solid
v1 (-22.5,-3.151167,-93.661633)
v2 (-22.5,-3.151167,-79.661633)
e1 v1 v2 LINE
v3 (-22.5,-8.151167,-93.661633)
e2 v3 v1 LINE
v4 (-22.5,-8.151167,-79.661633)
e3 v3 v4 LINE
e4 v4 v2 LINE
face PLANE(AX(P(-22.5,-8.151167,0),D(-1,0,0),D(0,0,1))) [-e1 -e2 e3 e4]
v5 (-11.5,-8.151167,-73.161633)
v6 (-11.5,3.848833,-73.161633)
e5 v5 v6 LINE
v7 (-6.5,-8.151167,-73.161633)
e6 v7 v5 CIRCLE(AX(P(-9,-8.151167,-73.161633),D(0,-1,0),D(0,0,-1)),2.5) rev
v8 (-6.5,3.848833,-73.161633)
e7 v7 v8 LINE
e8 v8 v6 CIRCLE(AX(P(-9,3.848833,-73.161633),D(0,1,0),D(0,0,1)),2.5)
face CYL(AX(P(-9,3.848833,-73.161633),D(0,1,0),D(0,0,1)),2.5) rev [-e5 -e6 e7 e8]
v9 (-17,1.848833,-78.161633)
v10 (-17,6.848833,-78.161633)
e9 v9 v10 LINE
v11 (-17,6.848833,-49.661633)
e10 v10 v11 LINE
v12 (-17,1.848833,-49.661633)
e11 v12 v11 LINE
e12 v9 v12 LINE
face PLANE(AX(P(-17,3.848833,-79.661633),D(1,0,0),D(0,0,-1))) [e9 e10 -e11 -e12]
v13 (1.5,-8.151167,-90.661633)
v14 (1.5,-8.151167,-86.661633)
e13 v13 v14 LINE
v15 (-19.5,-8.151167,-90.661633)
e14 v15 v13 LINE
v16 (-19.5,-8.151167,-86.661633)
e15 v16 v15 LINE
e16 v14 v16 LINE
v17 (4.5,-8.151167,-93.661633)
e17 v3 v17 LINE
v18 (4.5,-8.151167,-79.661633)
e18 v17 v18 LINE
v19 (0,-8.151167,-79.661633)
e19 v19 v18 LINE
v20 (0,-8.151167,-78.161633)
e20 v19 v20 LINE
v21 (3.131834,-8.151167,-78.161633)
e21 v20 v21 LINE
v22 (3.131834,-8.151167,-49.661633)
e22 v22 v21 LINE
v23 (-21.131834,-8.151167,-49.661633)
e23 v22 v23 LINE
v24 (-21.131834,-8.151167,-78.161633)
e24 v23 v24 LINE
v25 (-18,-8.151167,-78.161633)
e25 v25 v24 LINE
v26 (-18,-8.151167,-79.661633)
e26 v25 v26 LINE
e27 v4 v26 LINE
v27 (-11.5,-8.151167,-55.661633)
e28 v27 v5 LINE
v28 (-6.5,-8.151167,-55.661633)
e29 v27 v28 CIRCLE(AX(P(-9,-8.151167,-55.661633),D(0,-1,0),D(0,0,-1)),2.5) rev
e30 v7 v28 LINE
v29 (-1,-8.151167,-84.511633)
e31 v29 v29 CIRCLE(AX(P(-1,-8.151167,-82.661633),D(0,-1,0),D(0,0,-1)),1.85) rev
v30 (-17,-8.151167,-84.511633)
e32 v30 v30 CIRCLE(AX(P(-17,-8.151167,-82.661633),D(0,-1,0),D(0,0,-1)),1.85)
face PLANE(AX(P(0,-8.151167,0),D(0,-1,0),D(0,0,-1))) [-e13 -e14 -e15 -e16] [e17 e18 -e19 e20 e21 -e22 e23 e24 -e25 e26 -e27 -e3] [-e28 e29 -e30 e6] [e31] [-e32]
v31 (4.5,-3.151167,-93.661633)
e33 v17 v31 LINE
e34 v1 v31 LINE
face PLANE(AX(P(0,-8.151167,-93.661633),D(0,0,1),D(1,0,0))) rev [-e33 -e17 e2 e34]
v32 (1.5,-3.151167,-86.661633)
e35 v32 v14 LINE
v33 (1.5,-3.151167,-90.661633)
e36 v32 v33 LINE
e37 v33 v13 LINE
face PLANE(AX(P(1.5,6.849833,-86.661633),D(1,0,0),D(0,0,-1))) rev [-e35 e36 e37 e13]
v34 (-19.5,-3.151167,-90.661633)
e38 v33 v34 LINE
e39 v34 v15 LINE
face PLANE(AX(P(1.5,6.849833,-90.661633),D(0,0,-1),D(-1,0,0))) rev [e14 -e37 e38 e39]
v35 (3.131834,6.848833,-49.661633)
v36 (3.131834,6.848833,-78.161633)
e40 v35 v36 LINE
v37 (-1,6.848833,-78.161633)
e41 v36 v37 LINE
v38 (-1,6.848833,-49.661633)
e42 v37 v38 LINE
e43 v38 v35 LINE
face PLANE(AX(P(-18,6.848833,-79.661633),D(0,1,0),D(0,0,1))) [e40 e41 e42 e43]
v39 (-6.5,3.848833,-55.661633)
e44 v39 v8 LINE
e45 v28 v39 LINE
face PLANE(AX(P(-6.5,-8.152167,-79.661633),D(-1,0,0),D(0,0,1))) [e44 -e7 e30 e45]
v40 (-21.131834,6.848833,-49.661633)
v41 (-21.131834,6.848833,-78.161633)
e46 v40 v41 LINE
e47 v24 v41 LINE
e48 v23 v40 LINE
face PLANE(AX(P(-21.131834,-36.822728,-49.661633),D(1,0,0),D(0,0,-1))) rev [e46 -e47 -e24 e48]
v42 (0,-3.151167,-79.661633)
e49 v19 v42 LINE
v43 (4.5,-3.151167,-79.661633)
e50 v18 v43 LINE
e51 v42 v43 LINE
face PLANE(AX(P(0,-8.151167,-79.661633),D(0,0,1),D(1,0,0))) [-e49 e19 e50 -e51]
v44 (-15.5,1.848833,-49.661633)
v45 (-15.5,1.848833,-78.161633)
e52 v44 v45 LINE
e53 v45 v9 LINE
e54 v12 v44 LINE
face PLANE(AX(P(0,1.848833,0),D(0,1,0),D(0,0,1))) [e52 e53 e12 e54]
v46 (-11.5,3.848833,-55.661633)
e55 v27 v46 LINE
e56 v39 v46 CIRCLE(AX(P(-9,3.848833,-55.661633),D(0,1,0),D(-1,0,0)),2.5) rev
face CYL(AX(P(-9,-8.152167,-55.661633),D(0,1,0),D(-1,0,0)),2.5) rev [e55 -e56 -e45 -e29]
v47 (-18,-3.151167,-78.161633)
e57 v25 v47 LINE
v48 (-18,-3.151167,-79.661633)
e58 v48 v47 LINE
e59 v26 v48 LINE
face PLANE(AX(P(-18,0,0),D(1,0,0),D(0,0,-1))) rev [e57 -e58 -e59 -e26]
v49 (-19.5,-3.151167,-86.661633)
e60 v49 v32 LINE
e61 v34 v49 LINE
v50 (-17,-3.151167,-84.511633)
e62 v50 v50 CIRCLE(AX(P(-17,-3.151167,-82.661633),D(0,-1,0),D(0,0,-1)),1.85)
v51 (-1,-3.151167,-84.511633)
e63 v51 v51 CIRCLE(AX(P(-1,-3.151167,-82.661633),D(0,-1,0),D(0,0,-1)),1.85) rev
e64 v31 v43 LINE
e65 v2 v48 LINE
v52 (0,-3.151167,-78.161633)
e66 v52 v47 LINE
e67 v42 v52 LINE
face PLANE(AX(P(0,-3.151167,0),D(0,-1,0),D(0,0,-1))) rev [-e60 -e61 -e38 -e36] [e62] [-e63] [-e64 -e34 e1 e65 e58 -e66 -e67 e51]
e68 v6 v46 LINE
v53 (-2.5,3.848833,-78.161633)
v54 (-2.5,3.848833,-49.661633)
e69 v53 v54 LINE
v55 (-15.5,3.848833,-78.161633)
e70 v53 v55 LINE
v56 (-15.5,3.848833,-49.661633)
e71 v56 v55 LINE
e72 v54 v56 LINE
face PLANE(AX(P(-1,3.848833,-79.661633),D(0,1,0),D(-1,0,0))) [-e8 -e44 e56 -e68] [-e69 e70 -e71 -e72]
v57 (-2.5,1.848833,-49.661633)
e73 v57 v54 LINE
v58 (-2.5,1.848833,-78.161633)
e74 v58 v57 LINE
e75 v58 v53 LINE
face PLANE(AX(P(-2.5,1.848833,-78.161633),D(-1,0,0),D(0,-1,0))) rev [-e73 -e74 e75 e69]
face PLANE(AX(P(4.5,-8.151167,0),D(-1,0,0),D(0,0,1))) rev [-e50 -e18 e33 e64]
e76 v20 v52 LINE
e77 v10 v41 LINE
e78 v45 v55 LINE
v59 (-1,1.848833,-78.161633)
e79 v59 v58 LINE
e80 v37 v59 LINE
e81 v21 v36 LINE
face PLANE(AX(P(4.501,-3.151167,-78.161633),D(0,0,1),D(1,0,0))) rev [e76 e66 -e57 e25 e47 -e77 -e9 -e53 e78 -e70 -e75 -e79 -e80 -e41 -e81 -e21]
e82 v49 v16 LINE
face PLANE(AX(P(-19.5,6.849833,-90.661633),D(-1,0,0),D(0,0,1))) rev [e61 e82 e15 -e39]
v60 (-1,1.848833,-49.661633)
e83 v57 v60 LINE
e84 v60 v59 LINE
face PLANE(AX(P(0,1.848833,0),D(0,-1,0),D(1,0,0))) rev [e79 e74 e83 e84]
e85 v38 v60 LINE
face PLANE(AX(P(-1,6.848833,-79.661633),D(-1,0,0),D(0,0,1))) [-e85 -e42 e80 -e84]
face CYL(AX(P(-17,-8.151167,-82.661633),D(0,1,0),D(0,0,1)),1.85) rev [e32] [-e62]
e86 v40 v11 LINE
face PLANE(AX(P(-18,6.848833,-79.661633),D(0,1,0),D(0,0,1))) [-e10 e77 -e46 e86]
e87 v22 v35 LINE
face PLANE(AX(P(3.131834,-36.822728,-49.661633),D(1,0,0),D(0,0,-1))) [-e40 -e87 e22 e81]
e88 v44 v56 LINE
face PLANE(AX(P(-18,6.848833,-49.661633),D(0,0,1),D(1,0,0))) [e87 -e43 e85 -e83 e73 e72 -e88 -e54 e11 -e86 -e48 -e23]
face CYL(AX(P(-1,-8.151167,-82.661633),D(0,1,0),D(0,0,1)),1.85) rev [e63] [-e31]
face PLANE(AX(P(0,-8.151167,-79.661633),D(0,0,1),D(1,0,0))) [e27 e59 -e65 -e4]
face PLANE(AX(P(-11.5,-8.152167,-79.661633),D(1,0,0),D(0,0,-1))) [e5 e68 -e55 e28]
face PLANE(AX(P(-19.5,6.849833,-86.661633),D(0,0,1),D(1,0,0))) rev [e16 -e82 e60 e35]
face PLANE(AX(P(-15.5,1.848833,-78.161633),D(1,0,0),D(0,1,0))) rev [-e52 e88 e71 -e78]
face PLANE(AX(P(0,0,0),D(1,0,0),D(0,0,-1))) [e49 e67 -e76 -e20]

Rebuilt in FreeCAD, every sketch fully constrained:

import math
import FreeCAD as App
import Part
import Sketcher

V = App.Vector
Q = App.Units.Quantity


def add_polygon(sketch, points):
    """Adds a closed chain of lines whose ends are joined by coincident constraints."""
    first, n = sketch.GeometryCount, len(points)
    for a, b in zip(points, points[1:] + points[:1]):
        sketch.addGeometry(Part.LineSegment(App.Vector(*a, 0), App.Vector(*b, 0)), False)
    for i in range(n):
        sketch.addConstraint(Sketcher.Constraint("Coincident", first + i, 2, first + (i + 1) % n, 1))

doc = App.newDocument("Part")
body = doc.addObject("PartDesign::Body", "Body")

# Sketch on YZ plane
sketch1 = body.newObject("Sketcher::SketchObject", "Sketch")
sketch1.AttachmentSupport = (doc.getObject("YZ_Plane"), [""])
sketch1.MapMode = "FlatFace"
add_polygon(sketch1, [(6.848833, -49.661633), (-3.151167, -49.661633), (-3.151167, -79.661633), (6.848833, -79.661633)])  # lines 0-3
sketch1.addConstraint([
    Sketcher.Constraint("Horizontal", 0),
    Sketcher.Constraint("Vertical", 1),
    Sketcher.Constraint("Horizontal", 2),
    Sketcher.Constraint("Vertical", 3),
    Sketcher.Constraint("DistanceX", 0, 2, 0, 1, Q("10 mm")),
    Sketcher.Constraint("DistanceY", 1, 2, 1, 1, Q("30 mm")),
    Sketcher.Constraint("DistanceX", 0, 2, -1, 1, Q("3.151167 mm")),
    Sketcher.Constraint("DistanceY", 0, 2, -1, 1, Q("49.661633 mm")),
])
pad1 = body.newObject("PartDesign::Pad", "Pad")
pad1.Profile = sketch1
pad1.Length = 18
pad1.Reversed = True

# Sketch on XY plane
sketch2 = body.newObject("Sketcher::SketchObject", "Sketch001")
sketch2.AttachmentSupport = (doc.getObject("XY_Plane"), [""])
sketch2.MapMode = "FlatFace"
sketch2.AttachmentOffset = App.Placement(V(0, 0, -49.661633), App.Rotation())
add_polygon(sketch2, [(-17, 3.848833), (-17, 6.848833), (-1, 6.848833), (-1, 3.848833)])  # lines 0-3
sketch2.addConstraint([
    Sketcher.Constraint("Vertical", 0),
    Sketcher.Constraint("Horizontal", 1),
    Sketcher.Constraint("Vertical", 2),
    Sketcher.Constraint("Horizontal", 3),
    Sketcher.Constraint("DistanceX", 1, 1, 1, 2, Q("16 mm")),
    Sketcher.Constraint("DistanceY", 0, 1, 0, 2, Q("3 mm")),
    Sketcher.Constraint("DistanceX", 0, 2, -1, 1, Q("17 mm")),
    Sketcher.Constraint("DistanceY", -1, 1, 0, 2, Q("6.848833 mm")),
])
pocket1 = body.newObject("PartDesign::Pocket", "Pocket")
pocket1.Profile = sketch2
pocket1.Type = "ThroughAll"

# Sketch on XZ plane
sketch3 = body.newObject("Sketcher::SketchObject", "Sketch002")
sketch3.AttachmentSupport = (doc.getObject("XZ_Plane"), [""])
sketch3.MapMode = "FlatFace"
sketch3.AttachmentOffset = App.Placement(V(0, 0, -3.848833), App.Rotation())
sketch3.addGeometry(Part.Circle(V(-9, -65.161633, 0), V(0, 0, 1), 2.5), False)
sketch3.addConstraint([
    Sketcher.Constraint("Diameter", 0, Q("5 mm")),
    Sketcher.Constraint("DistanceX", 0, 3, -1, 1, Q("9 mm")),
    Sketcher.Constraint("DistanceY", 0, 3, -1, 1, Q("65.161633 mm")),
])
doc.recompute()
hole = body.newObject("PartDesign::Hole", "Hole")
hole.Profile = sketch3
hole.ThreadType = "None"
hole.Diameter = 5
hole.DepthType = "ThroughAll"
hole.Reversed = True

# Sketch on XZ plane
sketch4 = body.newObject("Sketcher::SketchObject", "Sketch003")
sketch4.AttachmentSupport = (doc.getObject("XZ_Plane"), [""])
sketch4.MapMode = "FlatFace"
sketch4.AttachmentOffset = App.Placement(V(0, 0, -3.848833), App.Rotation())
sketch4.addGeometry(Part.Circle(V(-9, -73.161633, 0), V(0, 0, 1), 2.5), False)
sketch4.addConstraint([
    Sketcher.Constraint("Diameter", 0, Q("5 mm")),
    Sketcher.Constraint("DistanceX", 0, 3, -1, 1, Q("9 mm")),
    Sketcher.Constraint("DistanceY", 0, 3, -1, 1, Q("73.161633 mm")),
])
doc.recompute()
hole2 = body.newObject("PartDesign::Hole", "Hole001")
hole2.Profile = sketch4
hole2.ThreadType = "None"
hole2.Diameter = 5
hole2.DepthType = "ThroughAll"
hole2.Reversed = True

# Sketch on XZ plane
sketch5 = body.newObject("Sketcher::SketchObject", "Sketch004")
sketch5.AttachmentSupport = (doc.getObject("XZ_Plane"), [""])
sketch5.MapMode = "FlatFace"
sketch5.AttachmentOffset = App.Placement(V(0, 0, 8.151167), App.Rotation())
add_polygon(sketch5, [(-18, -49.661633), (-18, -79.661633), (-22.5, -79.661633), (-22.5, -93.661633), (4.5, -93.661633), (4.5, -79.661633), (0, -79.661633), (0, -49.661633)])  # lines 0-7
sketch5.addGeometry(Part.Circle(V(-9, -73.161633, 0), V(0, 0, 1), 2.5), False)  # 8
sketch5.addGeometry(Part.Circle(V(-9, -65.161633, 0), V(0, 0, 1), 2.5), False)  # 9
sketch5.addGeometry(Part.Circle(V(-17, -82.661633, 0), V(0, 0, 1), 1.85), False)  # 10
sketch5.addGeometry(Part.Circle(V(-1, -82.661633, 0), V(0, 0, 1), 1.85), False)  # 11
sketch5.addConstraint([
    Sketcher.Constraint("Vertical", 0),
    Sketcher.Constraint("Horizontal", 1),
    Sketcher.Constraint("Vertical", 2),
    Sketcher.Constraint("Horizontal", 3),
    Sketcher.Constraint("Vertical", 4),
    Sketcher.Constraint("Horizontal", 5),
    Sketcher.Constraint("Vertical", 6),
    Sketcher.Constraint("Horizontal", 7),
    Sketcher.Constraint("Equal", 8, 9),
    Sketcher.Constraint("Equal", 10, 11),
    Sketcher.Constraint("PointOnObject", 5, 2, -2),
    Sketcher.Constraint("Horizontal", 10, 3, 11, 3),
    Sketcher.Constraint("Horizontal", 1, 2, 4, 2),
    Sketcher.Constraint("Vertical", 8, 3, 9, 3),
    Sketcher.Constraint("Equal", 1, 5),
    Sketcher.Constraint("Diameter", 8, Q("5 mm")),
    Sketcher.Constraint("Diameter", 10, Q("3.7 mm")),
    Sketcher.Constraint("DistanceX", 3, 1, 3, 2, Q("27 mm")),
    Sketcher.Constraint("DistanceX", 7, 2, 7, 1, Q("18 mm")),
    Sketcher.Constraint("DistanceY", 0, 2, 0, 1, Q("30 mm")),
    Sketcher.Constraint("DistanceY", 2, 2, 2, 1, Q("14 mm")),
    Sketcher.Constraint("DistanceX", 8, 3, -1, 1, Q("9 mm")),
    Sketcher.Constraint("DistanceX", 10, 3, -1, 1, Q("17 mm")),
    Sketcher.Constraint("DistanceX", 11, 3, -1, 1, Q("1 mm")),
    Sketcher.Constraint("DistanceY", 8, 3, 9, 3, Q("8 mm")),
    Sketcher.Constraint("DistanceY", 10, 3, 0, 2, Q("3 mm")),
    Sketcher.Constraint("DistanceY", 10, 3, 8, 3, Q("9.5 mm")),
    Sketcher.Constraint("DistanceY", 8, 3, -1, 1, Q("73.161633 mm")),
])
pad2 = body.newObject("PartDesign::Pad", "Pad001")
pad2.Profile = sketch5
pad2.Length = 5
pad2.Reversed = True

# Sketch on XZ plane
sketch6 = body.newObject("Sketcher::SketchObject", "Sketch005")
sketch6.AttachmentSupport = (doc.getObject("XZ_Plane"), [""])
sketch6.MapMode = "FlatFace"
sketch6.AttachmentOffset = App.Placement(V(0, 0, 8.151167), App.Rotation())
add_polygon(sketch6, [(1.5, -90.661633), (1.5, -86.661633), (-19.5, -86.661633), (-19.5, -90.661633)])  # lines 0-3
sketch6.addConstraint([
    Sketcher.Constraint("Vertical", 0),
    Sketcher.Constraint("Horizontal", 1),
    Sketcher.Constraint("Vertical", 2),
    Sketcher.Constraint("Horizontal", 3),
    Sketcher.Constraint("DistanceX", 1, 2, 1, 1, Q("21 mm")),
    Sketcher.Constraint("DistanceY", 0, 1, 0, 2, Q("4 mm")),
    Sketcher.Constraint("DistanceX", -1, 1, 0, 2, Q("1.5 mm")),
    Sketcher.Constraint("DistanceY", 0, 2, -1, 1, Q("86.661633 mm")),
])
pocket2 = body.newObject("PartDesign::Pocket", "Pocket001")
pocket2.Profile = sketch6
pocket2.Type = "UpToFirst"

# Sketch on YZ plane
sketch7 = body.newObject("Sketcher::SketchObject", "Sketch006")
sketch7.AttachmentSupport = (doc.getObject("YZ_Plane"), [""])
sketch7.MapMode = "FlatFace"
sketch7.AttachmentOffset = App.Placement(V(0, 0, -18), App.Rotation())
add_polygon(sketch7, [(6.848833, -79.661633), (-3.151167, -79.661633), (-3.151167, -78.161633), (6.848833, -78.161633)])  # lines 0-3
sketch7.addConstraint([
    Sketcher.Constraint("Horizontal", 0),
    Sketcher.Constraint("Vertical", 1),
    Sketcher.Constraint("Horizontal", 2),
    Sketcher.Constraint("Vertical", 3),
    Sketcher.Constraint("DistanceX", 0, 2, 0, 1, Q("10 mm")),
    Sketcher.Constraint("DistanceY", 1, 1, 1, 2, Q("1.5 mm")),
    Sketcher.Constraint("DistanceX", 0, 2, -1, 1, Q("3.151167 mm")),
    Sketcher.Constraint("DistanceY", 0, 2, -1, 1, Q("79.661633 mm")),
])
pocket3 = body.newObject("PartDesign::Pocket", "Pocket002")
pocket3.Profile = sketch7
pocket3.Type = "UpToFirst"
pocket3.Reversed = True

# Sketch on XZ plane
sketch8 = body.newObject("Sketcher::SketchObject", "Sketch007")
sketch8.AttachmentSupport = (doc.getObject("XZ_Plane"), [""])
sketch8.MapMode = "FlatFace"
sketch8.AttachmentOffset = App.Placement(V(0, 0, -6.848833), App.Rotation())
add_polygon(sketch8, [(-21.131834, -78.161633), (-21.131834, -49.661633), (-18, -49.661633), (-18, -78.161633)])  # lines 0-3
add_polygon(sketch8, [(0, -78.161633), (0, -49.661633), (3.131834, -49.661633), (3.131834, -78.161633)])  # lines 4-7
sketch8.addConstraint([
    Sketcher.Constraint("Vertical", 0),
    Sketcher.Constraint("Horizontal", 1),
    Sketcher.Constraint("Vertical", 2),
    Sketcher.Constraint("Horizontal", 3),
    Sketcher.Constraint("Vertical", 4),
    Sketcher.Constraint("Horizontal", 5),
    Sketcher.Constraint("Vertical", 6),
    Sketcher.Constraint("Horizontal", 7),
    Sketcher.Constraint("PointOnObject", 4, 2, -2),
    Sketcher.Constraint("Horizontal", 1, 2, 4, 2),
    Sketcher.Constraint("Horizontal", 3, 2, 6, 2),
    Sketcher.Constraint("Equal", 3, 5),
    Sketcher.Constraint("DistanceY", 0, 1, 0, 2, Q("28.5 mm")),
    Sketcher.Constraint("DistanceX", 1, 2, -1, 1, Q("18 mm")),
    Sketcher.Constraint("DistanceX", 1, 1, 1, 2, Q("3.131834 mm")),
    Sketcher.Constraint("DistanceY", 0, 2, -1, 1, Q("49.661633 mm")),
])
pad3 = body.newObject("PartDesign::Pad", "Pad002")
pad3.Profile = sketch8
pad3.Length = 15

# Sketch on XZ plane
sketch9 = body.newObject("Sketcher::SketchObject", "Sketch008")
sketch9.AttachmentSupport = (doc.getObject("XZ_Plane"), [""])
sketch9.MapMode = "FlatFace"
sketch9.AttachmentOffset = App.Placement(V(0, 0, -3.848833), App.Rotation())
add_polygon(sketch9, [(-17, -78.161633), (-17, -49.661633), (-15.5, -49.661633), (-15.5, -78.161633)])  # lines 0-3
add_polygon(sketch9, [(-2.5, -78.161633), (-2.5, -49.661633), (-1, -49.661633), (-1, -78.161633)])  # lines 4-7
sketch9.addConstraint([
    Sketcher.Constraint("Vertical", 0),
    Sketcher.Constraint("Horizontal", 1),
    Sketcher.Constraint("Vertical", 2),
    Sketcher.Constraint("Horizontal", 3),
    Sketcher.Constraint("Vertical", 4),
    Sketcher.Constraint("Horizontal", 5),
    Sketcher.Constraint("Vertical", 6),
    Sketcher.Constraint("Horizontal", 7),
    Sketcher.Constraint("Horizontal", 1, 2, 4, 2),
    Sketcher.Constraint("Horizontal", 3, 2, 6, 2),
    Sketcher.Constraint("Equal", 3, 5),
    Sketcher.Constraint("DistanceX", 1, 1, 1, 2, Q("1.5 mm")),
    Sketcher.Constraint("DistanceY", 0, 1, 0, 2, Q("28.5 mm")),
    Sketcher.Constraint("DistanceX", 0, 2, -1, 1, Q("17 mm")),
    Sketcher.Constraint("DistanceX", 5, 2, -1, 1, Q("1 mm")),
    Sketcher.Constraint("DistanceY", 0, 2, -1, 1, Q("49.661633 mm")),
])
pocket4 = body.newObject("PartDesign::Pocket", "Pocket003")
pocket4.Profile = sketch9
pocket4.Length = 2
pocket4.Reversed = True

# Sketch on XZ plane
sketch10 = body.newObject("Sketcher::SketchObject", "Sketch009")
sketch10.AttachmentSupport = (doc.getObject("XZ_Plane"), [""])
sketch10.MapMode = "FlatFace"
sketch10.AttachmentOffset = App.Placement(V(0, 0, 8.151167), App.Rotation())
sketch10.addGeometry([
    Part.LineSegment(V(-6.5, -55.661633, 0), V(-6.5, -73.161633, 0)),
    Part.ArcOfCircle(Part.Circle(V(-9, -73.161633, 0), V(0, 0, 1), 2.5), math.radians(180), math.radians(360)),
    Part.LineSegment(V(-11.5, -73.161633, 0), V(-11.5, -55.661633, 0)),
    Part.ArcOfCircle(Part.Circle(V(-9, -55.661633, 0), V(0, 0, 1), 2.5), math.radians(0), math.radians(180)),
], False)
sketch10.addConstraint([
    Sketcher.Constraint("Tangent", 0, 2, 1, 2),
    Sketcher.Constraint("Tangent", 1, 1, 2, 1),
    Sketcher.Constraint("Tangent", 2, 2, 3, 2),
    Sketcher.Constraint("Tangent", 3, 1, 0, 1),
    Sketcher.Constraint("Vertical", 0),
    Sketcher.Constraint("Vertical", 2),
    Sketcher.Constraint("Radius", 1, Q("2.5 mm")),
    Sketcher.Constraint("DistanceY", 0, 2, 0, 1, Q("17.5 mm")),
    Sketcher.Constraint("DistanceX", 1, 3, -1, 1, Q("9 mm")),
    Sketcher.Constraint("DistanceY", 1, 3, -1, 1, Q("73.161633 mm")),
])
pocket5 = body.newObject("PartDesign::Pocket", "Pocket004")
pocket5.Profile = sketch10
pocket5.Length = 15

doc.recompute()
